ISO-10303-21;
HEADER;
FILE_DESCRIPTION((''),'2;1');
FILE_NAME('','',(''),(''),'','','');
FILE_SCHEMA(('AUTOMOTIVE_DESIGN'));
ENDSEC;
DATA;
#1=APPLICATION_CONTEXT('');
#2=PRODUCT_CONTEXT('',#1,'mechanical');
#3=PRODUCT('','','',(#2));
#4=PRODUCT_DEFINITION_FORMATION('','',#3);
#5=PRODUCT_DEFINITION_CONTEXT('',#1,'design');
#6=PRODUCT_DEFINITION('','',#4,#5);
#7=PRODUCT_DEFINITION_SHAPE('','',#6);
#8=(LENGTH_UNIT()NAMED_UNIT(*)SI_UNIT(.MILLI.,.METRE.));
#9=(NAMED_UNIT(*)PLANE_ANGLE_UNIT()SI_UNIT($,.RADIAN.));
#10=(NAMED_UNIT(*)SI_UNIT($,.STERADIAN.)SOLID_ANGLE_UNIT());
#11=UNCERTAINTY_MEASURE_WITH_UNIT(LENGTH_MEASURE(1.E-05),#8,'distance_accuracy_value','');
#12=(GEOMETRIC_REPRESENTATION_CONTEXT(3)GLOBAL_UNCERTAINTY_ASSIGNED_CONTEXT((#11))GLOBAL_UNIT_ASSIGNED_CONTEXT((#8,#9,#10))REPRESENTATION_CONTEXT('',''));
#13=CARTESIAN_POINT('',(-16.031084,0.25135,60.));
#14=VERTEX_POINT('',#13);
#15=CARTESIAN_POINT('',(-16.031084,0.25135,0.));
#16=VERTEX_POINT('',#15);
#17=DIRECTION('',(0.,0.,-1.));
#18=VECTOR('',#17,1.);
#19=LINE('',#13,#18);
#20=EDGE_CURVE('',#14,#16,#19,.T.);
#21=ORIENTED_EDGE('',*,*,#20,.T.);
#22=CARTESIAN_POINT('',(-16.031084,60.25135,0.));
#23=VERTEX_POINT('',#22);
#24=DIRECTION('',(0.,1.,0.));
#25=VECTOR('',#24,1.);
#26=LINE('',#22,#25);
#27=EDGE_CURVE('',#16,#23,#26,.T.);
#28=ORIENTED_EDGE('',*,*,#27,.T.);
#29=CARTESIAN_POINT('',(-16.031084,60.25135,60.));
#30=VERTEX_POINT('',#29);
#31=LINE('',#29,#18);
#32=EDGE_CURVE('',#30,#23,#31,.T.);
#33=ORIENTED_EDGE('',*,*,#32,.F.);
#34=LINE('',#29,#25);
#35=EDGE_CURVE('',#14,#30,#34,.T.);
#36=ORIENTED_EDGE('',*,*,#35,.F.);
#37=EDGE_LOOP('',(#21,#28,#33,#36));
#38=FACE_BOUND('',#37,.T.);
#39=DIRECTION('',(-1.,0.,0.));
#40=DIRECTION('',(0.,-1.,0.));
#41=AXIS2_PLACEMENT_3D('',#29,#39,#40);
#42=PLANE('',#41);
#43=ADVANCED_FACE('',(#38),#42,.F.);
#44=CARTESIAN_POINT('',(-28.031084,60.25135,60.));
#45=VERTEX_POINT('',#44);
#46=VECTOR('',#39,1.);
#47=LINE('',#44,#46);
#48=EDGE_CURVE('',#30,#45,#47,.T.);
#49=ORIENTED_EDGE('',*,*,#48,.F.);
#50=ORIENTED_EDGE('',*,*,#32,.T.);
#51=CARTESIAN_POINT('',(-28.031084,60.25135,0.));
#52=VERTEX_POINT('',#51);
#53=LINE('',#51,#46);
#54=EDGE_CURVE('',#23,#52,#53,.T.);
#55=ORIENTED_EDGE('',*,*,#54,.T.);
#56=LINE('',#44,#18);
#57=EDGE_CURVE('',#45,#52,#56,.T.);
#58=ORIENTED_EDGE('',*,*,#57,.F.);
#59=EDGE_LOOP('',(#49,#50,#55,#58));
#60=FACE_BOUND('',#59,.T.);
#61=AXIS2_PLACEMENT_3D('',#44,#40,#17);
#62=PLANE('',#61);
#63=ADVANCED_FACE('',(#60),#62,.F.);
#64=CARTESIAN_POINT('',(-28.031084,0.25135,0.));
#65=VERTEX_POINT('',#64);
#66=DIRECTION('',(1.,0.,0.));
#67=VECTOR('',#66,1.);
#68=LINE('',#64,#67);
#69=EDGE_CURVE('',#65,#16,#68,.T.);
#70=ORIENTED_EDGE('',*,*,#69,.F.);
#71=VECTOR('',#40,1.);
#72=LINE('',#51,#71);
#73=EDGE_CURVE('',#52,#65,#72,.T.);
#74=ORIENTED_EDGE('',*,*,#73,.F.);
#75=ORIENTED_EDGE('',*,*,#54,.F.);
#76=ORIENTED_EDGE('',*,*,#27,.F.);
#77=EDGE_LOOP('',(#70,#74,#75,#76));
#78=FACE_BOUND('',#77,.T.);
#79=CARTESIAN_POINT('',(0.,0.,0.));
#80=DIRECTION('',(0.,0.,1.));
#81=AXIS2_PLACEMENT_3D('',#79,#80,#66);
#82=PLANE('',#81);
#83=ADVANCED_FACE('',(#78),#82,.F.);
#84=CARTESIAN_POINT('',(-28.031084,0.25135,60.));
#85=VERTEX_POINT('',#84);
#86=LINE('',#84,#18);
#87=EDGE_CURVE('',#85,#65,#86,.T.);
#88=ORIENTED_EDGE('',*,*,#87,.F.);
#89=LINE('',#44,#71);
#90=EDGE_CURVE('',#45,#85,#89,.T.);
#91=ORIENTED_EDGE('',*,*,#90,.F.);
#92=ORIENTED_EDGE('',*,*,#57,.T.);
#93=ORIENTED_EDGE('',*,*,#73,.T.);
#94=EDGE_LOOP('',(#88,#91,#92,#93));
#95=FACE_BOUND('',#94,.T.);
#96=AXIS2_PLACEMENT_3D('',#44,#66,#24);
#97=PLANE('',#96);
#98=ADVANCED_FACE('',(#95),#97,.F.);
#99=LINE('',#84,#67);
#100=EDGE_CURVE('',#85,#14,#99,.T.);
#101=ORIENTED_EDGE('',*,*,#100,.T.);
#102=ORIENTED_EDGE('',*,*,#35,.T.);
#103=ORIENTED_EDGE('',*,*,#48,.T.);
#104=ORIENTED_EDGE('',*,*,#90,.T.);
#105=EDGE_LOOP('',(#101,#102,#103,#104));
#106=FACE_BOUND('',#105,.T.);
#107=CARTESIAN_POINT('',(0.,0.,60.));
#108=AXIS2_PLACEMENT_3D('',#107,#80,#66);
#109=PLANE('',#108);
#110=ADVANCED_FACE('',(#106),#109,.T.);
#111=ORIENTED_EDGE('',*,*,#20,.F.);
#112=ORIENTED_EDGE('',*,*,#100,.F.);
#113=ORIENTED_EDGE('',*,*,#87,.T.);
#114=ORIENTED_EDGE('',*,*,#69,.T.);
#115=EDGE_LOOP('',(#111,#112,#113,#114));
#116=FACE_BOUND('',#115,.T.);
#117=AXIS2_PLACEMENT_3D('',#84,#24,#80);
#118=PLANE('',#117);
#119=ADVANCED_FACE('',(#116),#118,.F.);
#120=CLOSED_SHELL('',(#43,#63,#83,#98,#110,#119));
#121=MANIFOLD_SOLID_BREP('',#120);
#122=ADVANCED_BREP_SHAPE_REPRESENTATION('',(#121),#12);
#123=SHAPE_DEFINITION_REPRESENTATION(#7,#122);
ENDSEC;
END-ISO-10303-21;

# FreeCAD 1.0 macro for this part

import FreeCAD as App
import Part
import Sketcher

V = App.Vector


def add_polygon(sketch, points):
    """Adds a closed chain of lines whose ends are joined by coincident constraints."""
    first, n = sketch.GeometryCount, len(points)
    for a, b in zip(points, points[1:] + points[:1]):
        sketch.addGeometry(Part.LineSegment(App.Vector(*a, 0), App.Vector(*b, 0)), False)
    for i in range(n):
        sketch.addConstraint(Sketcher.Constraint("Coincident", first + i, 2, first + (i + 1) % n, 1))

doc = App.newDocument("Part")
body = doc.addObject("PartDesign::Body", "Body")

sketch1 = body.newObject("Sketcher::SketchObject", "Sketch")
sketch1.AttachmentSupport = (doc.getObject("XY_Plane"), [""])
sketch1.MapMode = "FlatFace"
add_polygon(sketch1, [(-28, 60), (-28, 0), (-16, 0), (-16, 60)])
sketch1.addConstraint([
    Sketcher.Constraint("Vertical", 0),
    Sketcher.Constraint("Horizontal", 1),
    Sketcher.Constraint("Vertical", 2),
    Sketcher.Constraint("Horizontal", 3),
    Sketcher.Constraint("DistanceX", 1, 1, 1, 2, 12.0),
    Sketcher.Constraint("DistanceY", 0, 2, 0, 1, 60.0),
    Sketcher.Constraint("DistanceY", -1, 1, 0, 2, 0.25135),
    Sketcher.Constraint("DistanceX", 0, 2, -1, 1, 28.031084),
])
pad1 = body.newObject("PartDesign::Pad", "Pad")
pad1.Profile = sketch1
pad1.Length = 60

doc.recompute()
